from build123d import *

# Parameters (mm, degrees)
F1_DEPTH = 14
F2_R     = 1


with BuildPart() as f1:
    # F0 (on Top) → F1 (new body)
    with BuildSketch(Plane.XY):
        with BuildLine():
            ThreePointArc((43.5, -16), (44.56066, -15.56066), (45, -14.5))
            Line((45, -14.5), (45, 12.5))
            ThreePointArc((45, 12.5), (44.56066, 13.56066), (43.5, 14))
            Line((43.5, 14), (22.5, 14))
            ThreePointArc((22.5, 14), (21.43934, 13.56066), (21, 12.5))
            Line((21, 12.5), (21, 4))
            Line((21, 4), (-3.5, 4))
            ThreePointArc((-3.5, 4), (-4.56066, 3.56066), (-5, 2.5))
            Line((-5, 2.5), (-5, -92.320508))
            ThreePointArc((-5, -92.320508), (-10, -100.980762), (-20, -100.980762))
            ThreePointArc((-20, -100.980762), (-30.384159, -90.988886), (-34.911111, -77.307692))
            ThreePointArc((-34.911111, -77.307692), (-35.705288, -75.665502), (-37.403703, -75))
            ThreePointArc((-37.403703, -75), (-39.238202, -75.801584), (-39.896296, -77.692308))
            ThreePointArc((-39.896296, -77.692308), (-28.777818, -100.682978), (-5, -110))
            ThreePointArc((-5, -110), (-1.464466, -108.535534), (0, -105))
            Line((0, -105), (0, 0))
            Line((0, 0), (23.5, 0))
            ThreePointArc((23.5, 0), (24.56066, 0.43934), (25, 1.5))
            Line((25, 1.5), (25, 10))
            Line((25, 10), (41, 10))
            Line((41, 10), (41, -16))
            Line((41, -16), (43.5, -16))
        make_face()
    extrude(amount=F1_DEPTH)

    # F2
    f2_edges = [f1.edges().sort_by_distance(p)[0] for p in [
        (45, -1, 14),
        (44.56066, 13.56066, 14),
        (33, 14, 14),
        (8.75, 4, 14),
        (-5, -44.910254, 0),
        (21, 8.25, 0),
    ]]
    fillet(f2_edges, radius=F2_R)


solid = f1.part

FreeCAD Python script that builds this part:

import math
import FreeCAD as App
import Part
import Sketcher
Q = App.Units.Quantity


def edges_at(feature, points):
    """Names of the edges that pass closest to the given points."""
    edges = feature.Shape.Edges
    near = lambda p: min(range(len(edges)), key=lambda i: edges[i].distToShape(Part.Vertex(*p))[0])
    return sorted({f"Edge{near(p) + 1}" for p in points})

doc = App.newDocument("Part")
body = doc.addObject("PartDesign::Body", "Body")

sketch1 = doc.addObject("Sketcher::SketchObject", "Sketch")
body.addObject(sketch1)
sketch1.AttachmentSupport = (doc.XY_Plane, [""])
sketch1.MapMode = "FlatFace"
sketch1.addGeometry([
    Part.ArcOfCircle(Part.Circle(App.Vector(43.5, -14.5, 0), App.Vector(0, 0, 1), 1.5), math.radians(-90), math.radians(0)),
    Part.LineSegment(App.Vector(45, -14.5, 0), App.Vector(45, 12.5, 0)),
    Part.ArcOfCircle(Part.Circle(App.Vector(43.5, 12.5, 0), App.Vector(0, 0, 1), 1.5), math.radians(0), math.radians(90)),
    Part.LineSegment(App.Vector(43.5, 14, 0), App.Vector(22.5, 14, 0)),
    Part.ArcOfCircle(Part.Circle(App.Vector(22.5, 12.5, 0), App.Vector(0, 0, 1), 1.5), math.radians(90), math.radians(180)),
    Part.LineSegment(App.Vector(21, 12.5, 0), App.Vector(21, 4, 0)),
    Part.LineSegment(App.Vector(21, 4, 0), App.Vector(-3.5, 4, 0)),
    Part.ArcOfCircle(Part.Circle(App.Vector(-3.5, 2.5, 0), App.Vector(0, 0, 1), 1.5), math.radians(90), math.radians(180)),
    Part.LineSegment(App.Vector(-5, 2.5, 0), App.Vector(-5, -92.3, 0)),
    Part.ArcOfCircle(Part.Circle(App.Vector(-15, -92.3, 0), App.Vector(0, 0, 1), 10), math.radians(-120), math.radians(0)),
    Part.ArcOfCircle(Part.Circle(App.Vector(-5, -75, 0), App.Vector(0, 0, 1), 30), math.radians(-176), math.radians(-120)),
    Part.ArcOfCircle(Part.Circle(App.Vector(-37.4, -77.5, 0), App.Vector(0, 0, 1), 2.5), math.radians(4), math.radians(90)),
    Part.ArcOfCircle(Part.Circle(App.Vector(-37.4, -77.5, 0), App.Vector(0, 0, 1), 2.5), math.radians(90), math.radians(184)),
    Part.ArcOfCircle(Part.Circle(App.Vector(-5, -75, 0), App.Vector(0, 0, 1), 35), math.radians(-176), math.radians(-90)),
    Part.ArcOfCircle(Part.Circle(App.Vector(-5, -105, 0), App.Vector(0, 0, 1), 5), math.radians(-90), math.radians(0)),
    Part.LineSegment(App.Vector(0, -105, 0), App.Vector(0, 0, 0)),
    Part.LineSegment(App.Vector(0, 0, 0), App.Vector(23.5, 0, 0)),
    Part.ArcOfCircle(Part.Circle(App.Vector(23.5, 1.5, 0), App.Vector(0, 0, 1), 1.5), math.radians(-90), math.radians(0)),
    Part.LineSegment(App.Vector(25, 1.5, 0), App.Vector(25, 10, 0)),
    Part.LineSegment(App.Vector(25, 10, 0), App.Vector(41, 10, 0)),
    Part.LineSegment(App.Vector(41, 10, 0), App.Vector(41, -16, 0)),
    Part.LineSegment(App.Vector(41, -16, 0), App.Vector(43.5, -16, 0)),
], False)
sketch1.addConstraint([
    Sketcher.Constraint("Tangent", 0, 2, 1, 1),
    Sketcher.Constraint("Tangent", 1, 2, 2, 1),
    Sketcher.Constraint("Tangent", 2, 2, 3, 1),
    Sketcher.Constraint("Tangent", 3, 2, 4, 1),
    Sketcher.Constraint("Tangent", 4, 2, 5, 1),
    Sketcher.Constraint("Coincident", 5, 2, 6, 1),
    Sketcher.Constraint("Tangent", 6, 2, 7, 1),
    Sketcher.Constraint("Tangent", 7, 2, 8, 1),
    Sketcher.Constraint("Tangent", 8, 2, 9, 2),
    Sketcher.Constraint("Tangent", 9, 1, 10, 2),
    Sketcher.Constraint("Tangent", 10, 1, 11, 1),
    Sketcher.Constraint("Tangent", 11, 2, 12, 1),
    Sketcher.Constraint("Tangent", 12, 2, 13, 1),
    Sketcher.Constraint("Tangent", 13, 2, 14, 1),
    Sketcher.Constraint("Tangent", 14, 2, 15, 1),
    Sketcher.Constraint("Coincident", 15, 2, 16, 1),
    Sketcher.Constraint("Tangent", 16, 2, 17, 1),
    Sketcher.Constraint("Tangent", 17, 2, 18, 1),
    Sketcher.Constraint("Coincident", 18, 2, 19, 1),
    Sketcher.Constraint("Coincident", 19, 2, 20, 1),
    Sketcher.Constraint("Coincident", 20, 2, 21, 1),
    Sketcher.Constraint("Tangent", 21, 2, 0, 1),
    Sketcher.Constraint("Vertical", 1),
    Sketcher.Constraint("Horizontal", 3),
    Sketcher.Constraint("Vertical", 5),
    Sketcher.Constraint("Horizontal", 6),
    Sketcher.Constraint("Vertical", 8),
    Sketcher.Constraint("Vertical", 15),
    Sketcher.Constraint("Horizontal", 16),
    Sketcher.Constraint("Vertical", 18),
    Sketcher.Constraint("Horizontal", 19),
    Sketcher.Constraint("Vertical", 20),
    Sketcher.Constraint("Horizontal", 21),
    Sketcher.Constraint("Coincident", 15, 2, -1, 1),
    Sketcher.Constraint("Coincident", 13, 3, 10, 3),
    Sketcher.Constraint("Equal", 0, 2),
    Sketcher.Constraint("Equal", 2, 4),
    Sketcher.Constraint("Equal", 4, 7),
    Sketcher.Constraint("Equal", 11, 12),
    Sketcher.Constraint("Equal", 7, 17),
    Sketcher.Constraint("Horizontal", 13, 3, 11, 2),
    Sketcher.Constraint("Vertical", 13, 3, 14, 3),
    Sketcher.Constraint("Vertical", 14, 3, 7, 2),
    Sketcher.Constraint("Vertical", 12, 3, 11, 2),
    Sketcher.Constraint("Equal", 5, 18),
    Sketcher.Constraint("Radius", 9, Q("10 mm")),
    Sketcher.Constraint("Radius", 10, Q("29.999999 mm")),
    Sketcher.Constraint("Radius", 13, Q("35 mm")),
    Sketcher.Constraint("Radius", 14, Q("5 mm")),
    Sketcher.Constraint("Radius", 0, Q("1.500001 mm")),
    Sketcher.Constraint("DistanceX", 3, 2, 3, 1, Q("21 mm")),
    Sketcher.Constraint("DistanceX", 19, 1, 19, 2, Q("16 mm")),
    Sketcher.Constraint("DistanceY", 1, 1, 1, 2, Q("27 mm")),
    Sketcher.Constraint("DistanceY", 15, 1, 15, 2, Q("105 mm")),
    Sketcher.Constraint("DistanceY", 20, 2, 20, 1, Q("26 mm")),
    Sketcher.Constraint("DistanceX", 6, 2, 6, 1, Q("24.5 mm")),
    Sketcher.Constraint("DistanceX", 16, 1, 16, 2, Q("23.5 mm")),
    Sketcher.Constraint("DistanceY", 5, 2, 5, 1, Q("8.5 mm")),
])
pad1 = doc.addObject("PartDesign::Pad", "Pad")
body.addObject(pad1)
pad1.Profile = sketch1
pad1.Length = 14
doc.recompute()

fillet = doc.addObject("PartDesign::Fillet", "Fillet")
body.addObject(fillet)
fillet.Base = (pad1, edges_at(pad1, [
    (45, -1, 14),
    (44.561, 13.561, 14),
    (33, 14, 14),
    (8.75, 4, 14),
    (-5, -44.91, 0),
    (21, 8.25, 0),
]))
fillet.Radius = 1

doc.recompute()
